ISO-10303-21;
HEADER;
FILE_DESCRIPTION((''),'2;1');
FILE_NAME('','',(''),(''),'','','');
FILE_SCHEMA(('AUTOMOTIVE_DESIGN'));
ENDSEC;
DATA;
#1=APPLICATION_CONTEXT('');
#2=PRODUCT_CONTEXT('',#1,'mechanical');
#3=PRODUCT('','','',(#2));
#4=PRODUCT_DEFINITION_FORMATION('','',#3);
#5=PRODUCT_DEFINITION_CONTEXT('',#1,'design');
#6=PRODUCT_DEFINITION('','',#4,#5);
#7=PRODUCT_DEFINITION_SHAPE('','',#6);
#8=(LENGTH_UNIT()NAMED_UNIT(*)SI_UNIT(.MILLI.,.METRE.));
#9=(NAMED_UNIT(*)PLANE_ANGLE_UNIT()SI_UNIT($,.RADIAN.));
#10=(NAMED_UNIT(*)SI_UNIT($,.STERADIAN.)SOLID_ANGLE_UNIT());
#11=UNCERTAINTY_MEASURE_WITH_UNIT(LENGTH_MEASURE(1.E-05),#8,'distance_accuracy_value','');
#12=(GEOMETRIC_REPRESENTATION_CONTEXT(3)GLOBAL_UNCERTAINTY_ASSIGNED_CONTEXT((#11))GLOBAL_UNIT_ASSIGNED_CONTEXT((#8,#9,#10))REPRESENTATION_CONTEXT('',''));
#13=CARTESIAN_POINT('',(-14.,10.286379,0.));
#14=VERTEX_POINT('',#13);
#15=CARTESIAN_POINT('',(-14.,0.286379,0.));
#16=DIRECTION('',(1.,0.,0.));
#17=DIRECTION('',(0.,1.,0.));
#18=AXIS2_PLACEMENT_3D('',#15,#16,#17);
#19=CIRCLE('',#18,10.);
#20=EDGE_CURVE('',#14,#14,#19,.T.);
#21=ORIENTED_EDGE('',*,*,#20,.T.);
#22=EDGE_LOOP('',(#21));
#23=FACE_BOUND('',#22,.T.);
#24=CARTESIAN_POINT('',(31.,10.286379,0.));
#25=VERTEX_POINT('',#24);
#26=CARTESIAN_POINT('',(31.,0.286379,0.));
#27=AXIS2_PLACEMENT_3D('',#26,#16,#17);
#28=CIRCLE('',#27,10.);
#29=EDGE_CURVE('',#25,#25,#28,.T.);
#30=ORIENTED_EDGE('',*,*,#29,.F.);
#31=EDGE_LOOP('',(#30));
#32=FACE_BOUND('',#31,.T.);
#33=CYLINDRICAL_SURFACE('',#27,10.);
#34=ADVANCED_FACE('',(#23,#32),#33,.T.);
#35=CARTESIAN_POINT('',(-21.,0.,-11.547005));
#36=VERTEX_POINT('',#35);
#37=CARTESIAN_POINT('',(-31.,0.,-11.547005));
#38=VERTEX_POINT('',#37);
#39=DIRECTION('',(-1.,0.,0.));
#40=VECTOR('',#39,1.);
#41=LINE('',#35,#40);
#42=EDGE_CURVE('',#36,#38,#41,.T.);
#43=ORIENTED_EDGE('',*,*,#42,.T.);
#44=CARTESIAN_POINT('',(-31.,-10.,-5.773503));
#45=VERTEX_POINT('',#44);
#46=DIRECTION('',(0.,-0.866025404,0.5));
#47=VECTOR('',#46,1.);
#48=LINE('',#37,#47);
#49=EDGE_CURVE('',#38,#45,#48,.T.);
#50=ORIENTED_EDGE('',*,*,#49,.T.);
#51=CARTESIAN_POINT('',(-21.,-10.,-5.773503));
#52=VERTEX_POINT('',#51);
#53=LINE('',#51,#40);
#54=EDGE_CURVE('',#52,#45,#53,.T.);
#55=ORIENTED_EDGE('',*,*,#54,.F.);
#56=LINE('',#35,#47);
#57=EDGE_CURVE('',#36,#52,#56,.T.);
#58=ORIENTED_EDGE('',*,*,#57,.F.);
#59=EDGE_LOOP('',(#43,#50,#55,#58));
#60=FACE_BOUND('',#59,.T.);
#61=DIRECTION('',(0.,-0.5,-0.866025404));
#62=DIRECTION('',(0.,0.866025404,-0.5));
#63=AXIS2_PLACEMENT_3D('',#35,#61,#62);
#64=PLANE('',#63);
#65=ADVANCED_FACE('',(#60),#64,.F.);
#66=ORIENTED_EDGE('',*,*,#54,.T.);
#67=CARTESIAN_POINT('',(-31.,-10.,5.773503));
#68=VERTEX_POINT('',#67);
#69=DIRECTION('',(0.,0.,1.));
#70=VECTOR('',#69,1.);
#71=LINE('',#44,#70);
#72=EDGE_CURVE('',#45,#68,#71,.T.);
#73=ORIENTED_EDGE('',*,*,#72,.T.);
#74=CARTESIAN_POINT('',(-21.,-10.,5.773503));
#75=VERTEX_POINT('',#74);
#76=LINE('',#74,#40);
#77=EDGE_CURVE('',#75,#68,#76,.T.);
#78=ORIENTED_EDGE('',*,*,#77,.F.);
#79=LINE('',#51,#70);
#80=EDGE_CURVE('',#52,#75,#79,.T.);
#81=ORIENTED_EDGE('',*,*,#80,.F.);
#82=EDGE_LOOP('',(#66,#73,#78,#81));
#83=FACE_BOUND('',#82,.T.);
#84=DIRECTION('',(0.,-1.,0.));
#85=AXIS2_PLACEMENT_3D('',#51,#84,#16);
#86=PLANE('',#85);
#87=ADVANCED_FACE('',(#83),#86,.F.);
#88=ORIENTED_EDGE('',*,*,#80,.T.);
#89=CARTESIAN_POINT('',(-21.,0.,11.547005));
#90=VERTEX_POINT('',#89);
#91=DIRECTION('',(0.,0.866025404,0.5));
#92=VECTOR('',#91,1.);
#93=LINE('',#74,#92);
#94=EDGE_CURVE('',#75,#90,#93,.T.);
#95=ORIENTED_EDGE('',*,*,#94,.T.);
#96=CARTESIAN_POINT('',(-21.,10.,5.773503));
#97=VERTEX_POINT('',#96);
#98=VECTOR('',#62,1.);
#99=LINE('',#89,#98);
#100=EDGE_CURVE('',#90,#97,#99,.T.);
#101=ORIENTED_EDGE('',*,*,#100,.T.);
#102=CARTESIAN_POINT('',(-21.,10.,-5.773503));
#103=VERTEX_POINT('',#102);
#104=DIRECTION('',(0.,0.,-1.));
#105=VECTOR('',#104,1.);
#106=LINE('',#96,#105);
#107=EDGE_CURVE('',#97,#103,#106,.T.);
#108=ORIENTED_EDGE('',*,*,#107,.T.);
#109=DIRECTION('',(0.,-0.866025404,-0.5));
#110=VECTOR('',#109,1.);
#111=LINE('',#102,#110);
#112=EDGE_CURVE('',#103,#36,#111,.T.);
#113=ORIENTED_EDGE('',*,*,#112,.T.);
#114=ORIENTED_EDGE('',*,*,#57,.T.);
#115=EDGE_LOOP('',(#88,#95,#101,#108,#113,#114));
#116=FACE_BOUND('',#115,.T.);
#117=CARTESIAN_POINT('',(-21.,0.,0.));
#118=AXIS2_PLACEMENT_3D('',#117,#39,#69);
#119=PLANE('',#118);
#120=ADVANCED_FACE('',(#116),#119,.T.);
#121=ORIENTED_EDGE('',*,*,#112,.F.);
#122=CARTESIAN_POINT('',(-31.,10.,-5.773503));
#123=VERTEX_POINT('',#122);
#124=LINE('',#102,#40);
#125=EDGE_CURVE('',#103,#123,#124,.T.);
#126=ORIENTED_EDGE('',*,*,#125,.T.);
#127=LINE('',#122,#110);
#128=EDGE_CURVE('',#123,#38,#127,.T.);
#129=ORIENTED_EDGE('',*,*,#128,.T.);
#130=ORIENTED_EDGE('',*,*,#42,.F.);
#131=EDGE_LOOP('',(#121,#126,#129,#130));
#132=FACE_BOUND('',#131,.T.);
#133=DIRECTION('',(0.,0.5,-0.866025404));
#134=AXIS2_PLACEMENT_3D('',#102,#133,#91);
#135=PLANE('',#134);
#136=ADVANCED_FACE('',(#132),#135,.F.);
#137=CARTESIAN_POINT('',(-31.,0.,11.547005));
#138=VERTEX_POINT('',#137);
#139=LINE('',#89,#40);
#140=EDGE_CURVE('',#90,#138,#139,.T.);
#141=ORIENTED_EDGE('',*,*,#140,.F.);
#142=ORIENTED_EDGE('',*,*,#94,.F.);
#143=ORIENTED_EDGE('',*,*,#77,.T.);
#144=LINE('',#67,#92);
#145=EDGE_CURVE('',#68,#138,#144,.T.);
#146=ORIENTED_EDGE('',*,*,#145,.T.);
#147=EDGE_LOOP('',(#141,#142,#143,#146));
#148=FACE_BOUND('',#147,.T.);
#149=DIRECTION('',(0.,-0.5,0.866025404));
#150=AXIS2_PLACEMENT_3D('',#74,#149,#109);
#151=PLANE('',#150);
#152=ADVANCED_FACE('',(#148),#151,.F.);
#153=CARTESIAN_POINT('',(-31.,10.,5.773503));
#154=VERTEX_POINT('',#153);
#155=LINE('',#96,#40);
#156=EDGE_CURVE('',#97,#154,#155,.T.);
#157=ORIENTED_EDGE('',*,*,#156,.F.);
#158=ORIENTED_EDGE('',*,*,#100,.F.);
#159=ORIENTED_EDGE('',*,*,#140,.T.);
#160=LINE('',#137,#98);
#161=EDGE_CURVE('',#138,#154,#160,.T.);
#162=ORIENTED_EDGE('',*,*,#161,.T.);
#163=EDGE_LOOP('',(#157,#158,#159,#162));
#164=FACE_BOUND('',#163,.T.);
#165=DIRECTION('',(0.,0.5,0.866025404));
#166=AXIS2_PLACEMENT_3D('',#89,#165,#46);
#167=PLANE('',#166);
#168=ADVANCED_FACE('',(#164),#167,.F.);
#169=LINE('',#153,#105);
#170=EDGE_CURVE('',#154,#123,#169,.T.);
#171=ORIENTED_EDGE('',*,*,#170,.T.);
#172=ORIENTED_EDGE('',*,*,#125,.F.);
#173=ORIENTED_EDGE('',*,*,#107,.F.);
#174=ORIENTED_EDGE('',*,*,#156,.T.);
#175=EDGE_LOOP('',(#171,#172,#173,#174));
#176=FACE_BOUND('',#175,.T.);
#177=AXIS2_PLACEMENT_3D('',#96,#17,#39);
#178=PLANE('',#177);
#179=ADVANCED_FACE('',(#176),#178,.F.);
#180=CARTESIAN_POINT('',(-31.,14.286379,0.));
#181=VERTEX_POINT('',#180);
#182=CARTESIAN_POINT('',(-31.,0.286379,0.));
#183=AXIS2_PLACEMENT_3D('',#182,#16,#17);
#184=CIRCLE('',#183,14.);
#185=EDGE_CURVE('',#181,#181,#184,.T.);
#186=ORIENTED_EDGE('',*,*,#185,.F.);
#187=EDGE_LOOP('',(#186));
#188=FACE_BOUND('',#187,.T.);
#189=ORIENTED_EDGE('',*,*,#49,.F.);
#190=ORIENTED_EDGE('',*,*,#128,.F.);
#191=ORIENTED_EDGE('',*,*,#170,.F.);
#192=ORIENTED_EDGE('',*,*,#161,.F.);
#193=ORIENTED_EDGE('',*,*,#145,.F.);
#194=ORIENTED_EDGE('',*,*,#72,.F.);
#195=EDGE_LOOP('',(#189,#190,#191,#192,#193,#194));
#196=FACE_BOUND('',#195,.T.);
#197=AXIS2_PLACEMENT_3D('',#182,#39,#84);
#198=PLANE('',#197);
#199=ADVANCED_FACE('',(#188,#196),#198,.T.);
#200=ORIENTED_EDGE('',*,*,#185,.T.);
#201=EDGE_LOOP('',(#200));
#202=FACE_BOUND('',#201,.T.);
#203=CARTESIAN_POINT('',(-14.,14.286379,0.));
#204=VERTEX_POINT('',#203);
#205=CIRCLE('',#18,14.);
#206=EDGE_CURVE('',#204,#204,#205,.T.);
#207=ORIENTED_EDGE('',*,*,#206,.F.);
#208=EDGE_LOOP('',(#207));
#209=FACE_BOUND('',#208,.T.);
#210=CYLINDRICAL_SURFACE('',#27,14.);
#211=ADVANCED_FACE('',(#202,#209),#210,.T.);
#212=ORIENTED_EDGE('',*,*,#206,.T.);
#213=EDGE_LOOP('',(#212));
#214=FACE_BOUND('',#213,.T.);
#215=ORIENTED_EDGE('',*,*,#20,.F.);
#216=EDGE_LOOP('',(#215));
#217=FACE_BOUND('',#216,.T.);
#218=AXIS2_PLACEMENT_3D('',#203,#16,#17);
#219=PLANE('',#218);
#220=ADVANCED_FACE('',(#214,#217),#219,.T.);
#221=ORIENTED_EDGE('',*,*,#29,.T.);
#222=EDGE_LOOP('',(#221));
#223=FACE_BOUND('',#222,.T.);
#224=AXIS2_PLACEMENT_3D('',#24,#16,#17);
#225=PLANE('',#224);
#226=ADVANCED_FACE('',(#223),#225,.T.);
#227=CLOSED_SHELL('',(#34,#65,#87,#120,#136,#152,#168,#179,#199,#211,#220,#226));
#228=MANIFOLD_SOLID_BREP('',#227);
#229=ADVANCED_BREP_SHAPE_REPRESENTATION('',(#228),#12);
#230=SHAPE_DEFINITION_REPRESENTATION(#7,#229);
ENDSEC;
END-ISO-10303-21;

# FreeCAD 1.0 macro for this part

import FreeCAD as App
import Part
import Sketcher

V = App.Vector
Q = App.Units.Quantity

doc = App.newDocument("Part")
body = doc.addObject("PartDesign::Body", "Body")

# Sketch on XY plane
sketch1 = body.newObject("Sketcher::SketchObject", "Sketch")
sketch1.AttachmentSupport = (doc.getObject("XY_Plane"), [""])
sketch1.MapMode = "FlatFace"
sketch1.addGeometry(Part.LineSegment(V(-31, 14.3, 0), V(-31, 0.3, 0)), False)
sketch1.addGeometry(Part.LineSegment(V(-31, 0.3, 0), V(31, 0.3, 0)), False)
sketch1.addGeometry(Part.LineSegment(V(31, 0.3, 0), V(31, 10.3, 0)), False)
sketch1.addGeometry(Part.LineSegment(V(31, 10.3, 0), V(-14, 10.3, 0)), False)
sketch1.addGeometry(Part.LineSegment(V(-14, 10.3, 0), V(-14, 14.3, 0)), False)
sketch1.addGeometry(Part.LineSegment(V(-14, 14.3, 0), V(-31, 14.3, 0)), False)
sketch1.addGeometry(Part.LineSegment(V(31, 0.3, 0), V(-31, 0.3, 0)), True)  # axis
sketch1.addConstraint(Sketcher.Constraint("Coincident", 0, 2, 1, 1))
sketch1.addConstraint(Sketcher.Constraint("Coincident", 1, 2, 2, 1))
sketch1.addConstraint(Sketcher.Constraint("Coincident", 2, 2, 3, 1))
sketch1.addConstraint(Sketcher.Constraint("Coincident", 3, 2, 4, 1))
sketch1.addConstraint(Sketcher.Constraint("Coincident", 4, 2, 5, 1))
sketch1.addConstraint(Sketcher.Constraint("Coincident", 5, 2, 0, 1))
sketch1.addConstraint(Sketcher.Constraint("Vertical", 0))
sketch1.addConstraint(Sketcher.Constraint("Horizontal", 1))
sketch1.addConstraint(Sketcher.Constraint("Vertical", 2))
sketch1.addConstraint(Sketcher.Constraint("Horizontal", 3))
sketch1.addConstraint(Sketcher.Constraint("Vertical", 4))
sketch1.addConstraint(Sketcher.Constraint("Horizontal", 5))
sketch1.addConstraint(Sketcher.Constraint("Horizontal", 6))
sketch1.addConstraint(Sketcher.Constraint("Coincident", 6, 1, 1, 2))
sketch1.addConstraint(Sketcher.Constraint("Vertical", 5, 2, 6, 2))
sketch1.addConstraint(Sketcher.Constraint("DistanceX", 1, 1, 1, 2, 62.0))
sketch1.addConstraint(Sketcher.Constraint("DistanceX", 3, 2, 3, 1, 45.0))
sketch1.addConstraint(Sketcher.Constraint("DistanceY", 0, 2, 0, 1, 14.0))
sketch1.addConstraint(Sketcher.Constraint("DistanceY", 2, 1, 2, 2, 10.0))
sketch1.addConstraint(Sketcher.Constraint("DistanceX", 0, 2, -1, 1, 31.0))
sketch1.addConstraint(Sketcher.Constraint("DistanceY", -1, 1, 0, 2, 0.286379))
revolution = body.newObject("PartDesign::Revolution", "Revolution")
revolution.Profile = sketch1
revolution.ReferenceAxis = (sketch1, ["Axis0"])
revolution.Angle = 360

# Sketch on YZ plane
sketch2 = body.newObject("Sketcher::SketchObject", "Sketch001")
sketch2.AttachmentSupport = (doc.getObject("YZ_Plane"), [""])
sketch2.MapMode = "FlatFace"
sketch2.AttachmentOffset = App.Placement(V(0, 0, -31), App.Rotation())
sketch2.addGeometry(Part.LineSegment(V(0, 12, 0), V(10, 6, 0)), False)
sketch2.addGeometry(Part.LineSegment(V(10, 6, 0), V(10, -6, 0)), False)
sketch2.addGeometry(Part.LineSegment(V(10, -6, 0), V(0, -12, 0)), False)
sketch2.addGeometry(Part.LineSegment(V(0, -12, 0), V(-10, -6, 0)), False)
sketch2.addGeometry(Part.LineSegment(V(-10, -6, 0), V(-10, 6, 0)), False)
sketch2.addGeometry(Part.LineSegment(V(-10, 6, 0), V(0, 12, 0)), False)
sketch2.addConstraint(Sketcher.Constraint("Coincident", 0, 2, 1, 1))
sketch2.addConstraint(Sketcher.Constraint("Coincident", 1, 2, 2, 1))
sketch2.addConstraint(Sketcher.Constraint("Coincident", 2, 2, 3, 1))
sketch2.addConstraint(Sketcher.Constraint("Coincident", 3, 2, 4, 1))
sketch2.addConstraint(Sketcher.Constraint("Coincident", 4, 2, 5, 1))
sketch2.addConstraint(Sketcher.Constraint("Coincident", 5, 2, 0, 1))
sketch2.addConstraint(Sketcher.Constraint("Vertical", 1))
sketch2.addConstraint(Sketcher.Constraint("Vertical", 4))
sketch2.addConstraint(Sketcher.Constraint("Symmetric", 0, 2, 3, 2, -1, 1))
sketch2.addConstraint(Sketcher.Constraint("Symmetric", 2, 2, 5, 2, -1, 1))
sketch2.addConstraint(Sketcher.Constraint("PointOnObject", 2, 2, -2))
sketch2.addConstraint(Sketcher.Constraint("Parallel", 2, 5))
sketch2.addConstraint(Sketcher.Constraint("Horizontal", 1, 2, 3, 2))
sketch2.addConstraint(Sketcher.Constraint("Angle", 0, Q("-30 deg")))
sketch2.addConstraint(Sketcher.Constraint("DistanceX", -1, 1, 0, 2, 10.0))
sketch2.addConstraint(Sketcher.Constraint("DistanceY", 1, 2, 1, 1, 11.547005))
pocket1 = body.newObject("PartDesign::Pocket", "Pocket")
pocket1.Profile = sketch2
pocket1.Length = 10
pocket1.Reversed = True

doc.recompute()
